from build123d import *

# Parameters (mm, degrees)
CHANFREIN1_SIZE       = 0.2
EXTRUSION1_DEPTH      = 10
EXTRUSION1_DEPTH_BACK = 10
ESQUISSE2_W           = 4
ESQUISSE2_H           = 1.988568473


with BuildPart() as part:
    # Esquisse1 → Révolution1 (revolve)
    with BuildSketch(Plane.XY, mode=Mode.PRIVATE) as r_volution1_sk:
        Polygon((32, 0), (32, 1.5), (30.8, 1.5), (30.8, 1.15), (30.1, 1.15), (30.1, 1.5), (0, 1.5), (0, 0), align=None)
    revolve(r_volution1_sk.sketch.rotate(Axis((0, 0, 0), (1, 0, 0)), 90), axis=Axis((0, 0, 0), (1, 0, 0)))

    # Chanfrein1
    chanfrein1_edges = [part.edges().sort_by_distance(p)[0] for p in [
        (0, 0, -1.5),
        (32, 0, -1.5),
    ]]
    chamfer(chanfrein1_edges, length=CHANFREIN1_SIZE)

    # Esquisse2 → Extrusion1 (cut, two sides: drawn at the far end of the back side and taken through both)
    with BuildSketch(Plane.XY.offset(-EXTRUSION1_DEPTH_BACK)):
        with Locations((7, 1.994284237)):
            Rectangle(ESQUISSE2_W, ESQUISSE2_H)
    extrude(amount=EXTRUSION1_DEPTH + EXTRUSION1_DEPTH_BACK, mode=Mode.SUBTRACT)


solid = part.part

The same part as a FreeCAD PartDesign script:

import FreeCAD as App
import Part
import Sketcher
from FreeCAD import Vector


def edges_at(feature, points):
    """Names of the edges that pass closest to the given points."""
    edges = feature.Shape.Edges
    near = lambda p: min(range(len(edges)), key=lambda i: edges[i].distToShape(Part.Vertex(*p))[0])
    return sorted({f"Edge{near(p) + 1}" for p in points})

doc = App.newDocument("Part")
body = doc.addObject("PartDesign::Body", "Body")

# Sketch on XY plane
sketch1 = doc.addObject("Sketcher::SketchObject", "Sketch")
body.addObject(sketch1)
sketch1.AttachmentSupport = (doc.XY_Plane, [""])
sketch1.MapMode = "FlatFace"
sketch1.addGeometry([
    Part.LineSegment(Vector(32, 0, 0), Vector(32, 1.5, 0)),  # 0
    Part.LineSegment(Vector(32, 1.5, 0), Vector(30.8, 1.5, 0)),  # 1
    Part.LineSegment(Vector(30.8, 1.5, 0), Vector(30.8, 1.15, 0)),  # 2
    Part.LineSegment(Vector(30.8, 1.15, 0), Vector(30.1, 1.15, 0)),  # 3
    Part.LineSegment(Vector(30.1, 1.15, 0), Vector(30.1, 1.5, 0)),  # 4
    Part.LineSegment(Vector(30.1, 1.5, 0), Vector(0, 1.5, 0)),  # 5
    Part.LineSegment(Vector(0, 1.5, 0), Vector(0, 0, 0)),  # 6
    Part.LineSegment(Vector(0, 0, 0), Vector(32, 0, 0)),  # 7
], False)
sketch1.addConstraint([
    Sketcher.Constraint("Coincident", 0, 2, 1, 1),
    Sketcher.Constraint("Coincident", 1, 2, 2, 1),
    Sketcher.Constraint("Coincident", 2, 2, 3, 1),
    Sketcher.Constraint("Coincident", 3, 2, 4, 1),
    Sketcher.Constraint("Coincident", 4, 2, 5, 1),
    Sketcher.Constraint("Coincident", 5, 2, 6, 1),
    Sketcher.Constraint("Coincident", 6, 2, 7, 1),
    Sketcher.Constraint("Coincident", 7, 2, 0, 1),
    Sketcher.Constraint("Vertical", 0),
    Sketcher.Constraint("Horizontal", 1),
    Sketcher.Constraint("Vertical", 2),
    Sketcher.Constraint("Horizontal", 3),
    Sketcher.Constraint("Vertical", 4),
    Sketcher.Constraint("Horizontal", 5),
    Sketcher.Constraint("Vertical", 6),
    Sketcher.Constraint("Horizontal", 7),
    Sketcher.Constraint("Coincident", 6, 2, -1, 1),
    Sketcher.Constraint("Horizontal", 1, 2, 4, 2),
    Sketcher.Constraint("DistanceX", 7, 1, 7, 2, 32.0),
    Sketcher.Constraint("DistanceX", 1, 2, 1, 1, 1.2),
    Sketcher.Constraint("DistanceX", 3, 2, 3, 1, 0.7),
    Sketcher.Constraint("DistanceY", 0, 1, 0, 2, 1.5),
    Sketcher.Constraint("DistanceY", 2, 2, 2, 1, 0.35),
])
revolution = doc.addObject("PartDesign::Revolution", "Revolution")
body.addObject(revolution)
revolution.Profile = sketch1
revolution.ReferenceAxis = (sketch1, ["H_Axis"])
revolution.Angle = 360
doc.recompute()

chamfer = doc.addObject("PartDesign::Chamfer", "Chamfer")
body.addObject(chamfer)
chamfer.Base = (revolution, edges_at(revolution, [(0, 0, -1.5), (32, 0, -1.5)]))
chamfer.Size = 0.2

# Sketch on XY plane
sketch2 = doc.addObject("Sketcher::SketchObject", "Sketch001")
body.addObject(sketch2)
sketch2.AttachmentSupport = (doc.XY_Plane, [""])
sketch2.MapMode = "FlatFace"
sketch2.addGeometry([
    Part.LineSegment(Vector(5, 3, 0), Vector(5, 1, 0)),
    Part.LineSegment(Vector(5, 1, 0), Vector(9, 1, 0)),
    Part.LineSegment(Vector(9, 1, 0), Vector(9, 3, 0)),
    Part.LineSegment(Vector(9, 3, 0), Vector(5, 3, 0)),
], False)
sketch2.addConstraint([
    Sketcher.Constraint("Coincident", 0, 2, 1, 1),
    Sketcher.Constraint("Coincident", 1, 2, 2, 1),
    Sketcher.Constraint("Coincident", 2, 2, 3, 1),
    Sketcher.Constraint("Coincident", 3, 2, 0, 1),
    Sketcher.Constraint("Vertical", 0),
    Sketcher.Constraint("Horizontal", 1),
    Sketcher.Constraint("Vertical", 2),
    Sketcher.Constraint("Horizontal", 3),
    Sketcher.Constraint("DistanceX", 1, 1, 1, 2, 4.0),
    Sketcher.Constraint("DistanceX", -1, 1, 0, 2, 5.0),
    Sketcher.Constraint("DistanceY", -1, 1, 0, 2, 1.0),
    Sketcher.Constraint("DistanceY", 0, 2, 0, 1, 1.988568),
])
pocket1 = doc.addObject("PartDesign::Pocket", "Pocket")
body.addObject(pocket1)
pocket1.Profile = sketch2
pocket1.Type = "ThroughAll"
pocket1.Midplane = True

doc.recompute()
